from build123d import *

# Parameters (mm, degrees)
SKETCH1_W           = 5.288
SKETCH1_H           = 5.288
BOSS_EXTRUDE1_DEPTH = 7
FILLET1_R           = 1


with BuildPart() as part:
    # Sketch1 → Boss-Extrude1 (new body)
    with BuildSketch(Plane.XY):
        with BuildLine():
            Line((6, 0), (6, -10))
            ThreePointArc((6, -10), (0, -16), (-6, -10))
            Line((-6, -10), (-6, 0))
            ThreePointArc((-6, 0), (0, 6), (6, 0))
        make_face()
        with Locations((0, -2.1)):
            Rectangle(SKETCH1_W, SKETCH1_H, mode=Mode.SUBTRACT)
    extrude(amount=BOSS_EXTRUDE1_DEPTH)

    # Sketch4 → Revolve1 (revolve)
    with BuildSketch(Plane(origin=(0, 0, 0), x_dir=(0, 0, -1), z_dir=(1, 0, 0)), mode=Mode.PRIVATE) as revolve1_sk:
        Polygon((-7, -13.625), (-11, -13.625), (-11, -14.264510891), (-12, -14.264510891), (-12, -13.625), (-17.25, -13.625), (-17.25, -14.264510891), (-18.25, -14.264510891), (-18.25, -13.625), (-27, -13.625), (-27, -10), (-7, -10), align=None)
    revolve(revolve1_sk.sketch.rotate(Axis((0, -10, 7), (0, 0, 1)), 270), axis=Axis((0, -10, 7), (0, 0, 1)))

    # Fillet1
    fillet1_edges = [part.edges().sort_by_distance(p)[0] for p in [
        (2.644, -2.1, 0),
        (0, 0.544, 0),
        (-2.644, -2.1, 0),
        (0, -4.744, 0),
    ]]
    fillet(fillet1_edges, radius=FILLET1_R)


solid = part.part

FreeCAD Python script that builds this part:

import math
import FreeCAD as App
import Part
import Sketcher

V = App.Vector
Q = App.Units.Quantity


def edges_at(feature, points):
    """Names of the edges that pass closest to the given points."""
    edges = feature.Shape.Edges
    near = lambda p: min(range(len(edges)), key=lambda i: edges[i].distToShape(Part.Vertex(*p))[0])
    return sorted({f"Edge{near(p) + 1}" for p in points})

doc = App.newDocument("Part")
body = doc.addObject("PartDesign::Body", "Body")

sketch1 = doc.addObject("Sketcher::SketchObject", "Sketch")
body.addObject(sketch1)
sketch1.AttachmentSupport = (doc.XY_Plane, [""])
sketch1.MapMode = "FlatFace"
sketch1.addGeometry([
    Part.LineSegment(V(6, -10, 0), V(6, 0, 0)),
    Part.ArcOfCircle(Part.Circle(V(0, 0, 0), V(0, 0, 1), 6), math.radians(0), math.radians(180)),
    Part.LineSegment(V(-6, 0, 0), V(-6, -10, 0)),
    Part.ArcOfCircle(Part.Circle(V(0, -10, 0), V(0, 0, 1), 6), math.radians(180), math.radians(360)),
    Part.LineSegment(V(-3, -5, 0), V(-3, 1, 0)),
    Part.LineSegment(V(-3, 1, 0), V(3, 1, 0)),
    Part.LineSegment(V(3, 1, 0), V(3, -5, 0)),
    Part.LineSegment(V(3, -5, 0), V(-3, -5, 0)),
], False)
sketch1.addConstraint([
    Sketcher.Constraint("Tangent", 0, 2, 1, 1),
    Sketcher.Constraint("Tangent", 1, 2, 2, 1),
    Sketcher.Constraint("Tangent", 2, 2, 3, 1),
    Sketcher.Constraint("Tangent", 3, 2, 0, 1),
    Sketcher.Constraint("Coincident", 4, 2, 5, 1),
    Sketcher.Constraint("Coincident", 5, 2, 6, 1),
    Sketcher.Constraint("Coincident", 6, 2, 7, 1),
    Sketcher.Constraint("Coincident", 7, 2, 4, 1),
    Sketcher.Constraint("Vertical", 0),
    Sketcher.Constraint("Vertical", 2),
    Sketcher.Constraint("Vertical", 4),
    Sketcher.Constraint("Horizontal", 5),
    Sketcher.Constraint("Vertical", 6),
    Sketcher.Constraint("Horizontal", 7),
    Sketcher.Constraint("Coincident", 1, 3, -1, 1),
    Sketcher.Constraint("Equal", 7, 4),
    Sketcher.Constraint("Radius", 1, Q("6 mm")),
    Sketcher.Constraint("DistanceY", 0, 1, 0, 2, Q("10 mm")),
    Sketcher.Constraint("DistanceX", 5, 1, 5, 2, Q("5.288 mm")),
    Sketcher.Constraint("DistanceX", 4, 2, -1, 1, Q("2.644 mm")),
    Sketcher.Constraint("DistanceY", -1, 1, 4, 2, Q("0.544 mm")),
])
pad1 = doc.addObject("PartDesign::Pad", "Pad")
body.addObject(pad1)
pad1.Profile = sketch1
pad1.Length = 7

sketch2 = doc.addObject("Sketcher::SketchObject", "Sketch001")
body.addObject(sketch2)
sketch2.AttachmentSupport = (doc.YZ_Plane, [""])
sketch2.MapMode = "FlatFace"
sketch2.addGeometry([
    Part.LineSegment(V(-13.6, 11, 0), V(-13.6, 7, 0)),
    Part.LineSegment(V(-13.6, 7, 0), V(-10, 7, 0)),
    Part.LineSegment(V(-10, 7, 0), V(-10, 27, 0)),
    Part.LineSegment(V(-10, 27, 0), V(-13.6, 27, 0)),
    Part.LineSegment(V(-13.6, 27, 0), V(-13.6, 18.2, 0)),
    Part.LineSegment(V(-13.6, 18.2, 0), V(-14.3, 18.2, 0)),
    Part.LineSegment(V(-14.3, 18.2, 0), V(-14.3, 17.2, 0)),
    Part.LineSegment(V(-14.3, 17.2, 0), V(-13.6, 17.2, 0)),
    Part.LineSegment(V(-13.6, 17.2, 0), V(-13.6, 12, 0)),
    Part.LineSegment(V(-13.6, 12, 0), V(-14.3, 12, 0)),
    Part.LineSegment(V(-14.3, 12, 0), V(-14.3, 11, 0)),
    Part.LineSegment(V(-14.3, 11, 0), V(-13.6, 11, 0)),
], False)
sketch2.addGeometry(Part.LineSegment(V(-10, 7, 0), V(-10, 27, 0)), True)
sketch2.addConstraint([
    Sketcher.Constraint("Coincident", 0, 2, 1, 1),
    Sketcher.Constraint("Coincident", 1, 2, 2, 1),
    Sketcher.Constraint("Coincident", 2, 2, 3, 1),
    Sketcher.Constraint("Coincident", 3, 2, 4, 1),
    Sketcher.Constraint("Coincident", 4, 2, 5, 1),
    Sketcher.Constraint("Coincident", 5, 2, 6, 1),
    Sketcher.Constraint("Coincident", 6, 2, 7, 1),
    Sketcher.Constraint("Coincident", 7, 2, 8, 1),
    Sketcher.Constraint("Coincident", 8, 2, 9, 1),
    Sketcher.Constraint("Coincident", 9, 2, 10, 1),
    Sketcher.Constraint("Coincident", 10, 2, 11, 1),
    Sketcher.Constraint("Coincident", 11, 2, 0, 1),
    Sketcher.Constraint("Vertical", 0),
    Sketcher.Constraint("Horizontal", 1),
    Sketcher.Constraint("Vertical", 2),
    Sketcher.Constraint("Horizontal", 3),
    Sketcher.Constraint("Vertical", 4),
    Sketcher.Constraint("Horizontal", 5),
    Sketcher.Constraint("Vertical", 6),
    Sketcher.Constraint("Horizontal", 7),
    Sketcher.Constraint("Vertical", 8),
    Sketcher.Constraint("Horizontal", 9),
    Sketcher.Constraint("Vertical", 10),
    Sketcher.Constraint("Horizontal", 11),
    Sketcher.Constraint("Vertical", 12),
    Sketcher.Constraint("Coincident", 12, 1, 1, 2),
    Sketcher.Constraint("Horizontal", 3, 2, 12, 2),
    Sketcher.Constraint("Vertical", 0, 2, 3, 2),
    Sketcher.Constraint("Vertical", 4, 2, 7, 2),
    Sketcher.Constraint("Vertical", 6, 2, 9, 2),
    Sketcher.Constraint("Equal", 6, 10),
    Sketcher.Constraint("DistanceY", 0, 2, 0, 1, Q("4 mm")),
    Sketcher.Constraint("DistanceY", 2, 1, 2, 2, Q("20 mm")),
    Sketcher.Constraint("DistanceY", 6, 2, 6, 1, Q("1 mm")),
    Sketcher.Constraint("DistanceY", -1, 1, 0, 2, Q("7 mm")),
    Sketcher.Constraint("DistanceX", 1, 2, -1, 1, Q("10 mm")),
    Sketcher.Constraint("DistanceY", 4, 2, 4, 1, Q("8.75 mm")),
    Sketcher.Constraint("DistanceX", 1, 1, 1, 2, Q("3.625 mm")),
    Sketcher.Constraint("DistanceX", 5, 2, 5, 1, Q("0.639511 mm")),
])
revolution = doc.addObject("PartDesign::Revolution", "Revolution")
body.addObject(revolution)
revolution.Profile = sketch2
revolution.ReferenceAxis = (sketch2, ["Axis0"])
revolution.Angle = 360
doc.recompute()

fillet = doc.addObject("PartDesign::Fillet", "Fillet")
body.addObject(fillet)
fillet.Base = (revolution, edges_at(revolution, [
    (2.644, -2.1, 0),
    (0, 0.544, 0),
    (-2.644, -2.1, 0),
    (0, -4.744, 0),
]))
fillet.Radius = 1

doc.recompute()
